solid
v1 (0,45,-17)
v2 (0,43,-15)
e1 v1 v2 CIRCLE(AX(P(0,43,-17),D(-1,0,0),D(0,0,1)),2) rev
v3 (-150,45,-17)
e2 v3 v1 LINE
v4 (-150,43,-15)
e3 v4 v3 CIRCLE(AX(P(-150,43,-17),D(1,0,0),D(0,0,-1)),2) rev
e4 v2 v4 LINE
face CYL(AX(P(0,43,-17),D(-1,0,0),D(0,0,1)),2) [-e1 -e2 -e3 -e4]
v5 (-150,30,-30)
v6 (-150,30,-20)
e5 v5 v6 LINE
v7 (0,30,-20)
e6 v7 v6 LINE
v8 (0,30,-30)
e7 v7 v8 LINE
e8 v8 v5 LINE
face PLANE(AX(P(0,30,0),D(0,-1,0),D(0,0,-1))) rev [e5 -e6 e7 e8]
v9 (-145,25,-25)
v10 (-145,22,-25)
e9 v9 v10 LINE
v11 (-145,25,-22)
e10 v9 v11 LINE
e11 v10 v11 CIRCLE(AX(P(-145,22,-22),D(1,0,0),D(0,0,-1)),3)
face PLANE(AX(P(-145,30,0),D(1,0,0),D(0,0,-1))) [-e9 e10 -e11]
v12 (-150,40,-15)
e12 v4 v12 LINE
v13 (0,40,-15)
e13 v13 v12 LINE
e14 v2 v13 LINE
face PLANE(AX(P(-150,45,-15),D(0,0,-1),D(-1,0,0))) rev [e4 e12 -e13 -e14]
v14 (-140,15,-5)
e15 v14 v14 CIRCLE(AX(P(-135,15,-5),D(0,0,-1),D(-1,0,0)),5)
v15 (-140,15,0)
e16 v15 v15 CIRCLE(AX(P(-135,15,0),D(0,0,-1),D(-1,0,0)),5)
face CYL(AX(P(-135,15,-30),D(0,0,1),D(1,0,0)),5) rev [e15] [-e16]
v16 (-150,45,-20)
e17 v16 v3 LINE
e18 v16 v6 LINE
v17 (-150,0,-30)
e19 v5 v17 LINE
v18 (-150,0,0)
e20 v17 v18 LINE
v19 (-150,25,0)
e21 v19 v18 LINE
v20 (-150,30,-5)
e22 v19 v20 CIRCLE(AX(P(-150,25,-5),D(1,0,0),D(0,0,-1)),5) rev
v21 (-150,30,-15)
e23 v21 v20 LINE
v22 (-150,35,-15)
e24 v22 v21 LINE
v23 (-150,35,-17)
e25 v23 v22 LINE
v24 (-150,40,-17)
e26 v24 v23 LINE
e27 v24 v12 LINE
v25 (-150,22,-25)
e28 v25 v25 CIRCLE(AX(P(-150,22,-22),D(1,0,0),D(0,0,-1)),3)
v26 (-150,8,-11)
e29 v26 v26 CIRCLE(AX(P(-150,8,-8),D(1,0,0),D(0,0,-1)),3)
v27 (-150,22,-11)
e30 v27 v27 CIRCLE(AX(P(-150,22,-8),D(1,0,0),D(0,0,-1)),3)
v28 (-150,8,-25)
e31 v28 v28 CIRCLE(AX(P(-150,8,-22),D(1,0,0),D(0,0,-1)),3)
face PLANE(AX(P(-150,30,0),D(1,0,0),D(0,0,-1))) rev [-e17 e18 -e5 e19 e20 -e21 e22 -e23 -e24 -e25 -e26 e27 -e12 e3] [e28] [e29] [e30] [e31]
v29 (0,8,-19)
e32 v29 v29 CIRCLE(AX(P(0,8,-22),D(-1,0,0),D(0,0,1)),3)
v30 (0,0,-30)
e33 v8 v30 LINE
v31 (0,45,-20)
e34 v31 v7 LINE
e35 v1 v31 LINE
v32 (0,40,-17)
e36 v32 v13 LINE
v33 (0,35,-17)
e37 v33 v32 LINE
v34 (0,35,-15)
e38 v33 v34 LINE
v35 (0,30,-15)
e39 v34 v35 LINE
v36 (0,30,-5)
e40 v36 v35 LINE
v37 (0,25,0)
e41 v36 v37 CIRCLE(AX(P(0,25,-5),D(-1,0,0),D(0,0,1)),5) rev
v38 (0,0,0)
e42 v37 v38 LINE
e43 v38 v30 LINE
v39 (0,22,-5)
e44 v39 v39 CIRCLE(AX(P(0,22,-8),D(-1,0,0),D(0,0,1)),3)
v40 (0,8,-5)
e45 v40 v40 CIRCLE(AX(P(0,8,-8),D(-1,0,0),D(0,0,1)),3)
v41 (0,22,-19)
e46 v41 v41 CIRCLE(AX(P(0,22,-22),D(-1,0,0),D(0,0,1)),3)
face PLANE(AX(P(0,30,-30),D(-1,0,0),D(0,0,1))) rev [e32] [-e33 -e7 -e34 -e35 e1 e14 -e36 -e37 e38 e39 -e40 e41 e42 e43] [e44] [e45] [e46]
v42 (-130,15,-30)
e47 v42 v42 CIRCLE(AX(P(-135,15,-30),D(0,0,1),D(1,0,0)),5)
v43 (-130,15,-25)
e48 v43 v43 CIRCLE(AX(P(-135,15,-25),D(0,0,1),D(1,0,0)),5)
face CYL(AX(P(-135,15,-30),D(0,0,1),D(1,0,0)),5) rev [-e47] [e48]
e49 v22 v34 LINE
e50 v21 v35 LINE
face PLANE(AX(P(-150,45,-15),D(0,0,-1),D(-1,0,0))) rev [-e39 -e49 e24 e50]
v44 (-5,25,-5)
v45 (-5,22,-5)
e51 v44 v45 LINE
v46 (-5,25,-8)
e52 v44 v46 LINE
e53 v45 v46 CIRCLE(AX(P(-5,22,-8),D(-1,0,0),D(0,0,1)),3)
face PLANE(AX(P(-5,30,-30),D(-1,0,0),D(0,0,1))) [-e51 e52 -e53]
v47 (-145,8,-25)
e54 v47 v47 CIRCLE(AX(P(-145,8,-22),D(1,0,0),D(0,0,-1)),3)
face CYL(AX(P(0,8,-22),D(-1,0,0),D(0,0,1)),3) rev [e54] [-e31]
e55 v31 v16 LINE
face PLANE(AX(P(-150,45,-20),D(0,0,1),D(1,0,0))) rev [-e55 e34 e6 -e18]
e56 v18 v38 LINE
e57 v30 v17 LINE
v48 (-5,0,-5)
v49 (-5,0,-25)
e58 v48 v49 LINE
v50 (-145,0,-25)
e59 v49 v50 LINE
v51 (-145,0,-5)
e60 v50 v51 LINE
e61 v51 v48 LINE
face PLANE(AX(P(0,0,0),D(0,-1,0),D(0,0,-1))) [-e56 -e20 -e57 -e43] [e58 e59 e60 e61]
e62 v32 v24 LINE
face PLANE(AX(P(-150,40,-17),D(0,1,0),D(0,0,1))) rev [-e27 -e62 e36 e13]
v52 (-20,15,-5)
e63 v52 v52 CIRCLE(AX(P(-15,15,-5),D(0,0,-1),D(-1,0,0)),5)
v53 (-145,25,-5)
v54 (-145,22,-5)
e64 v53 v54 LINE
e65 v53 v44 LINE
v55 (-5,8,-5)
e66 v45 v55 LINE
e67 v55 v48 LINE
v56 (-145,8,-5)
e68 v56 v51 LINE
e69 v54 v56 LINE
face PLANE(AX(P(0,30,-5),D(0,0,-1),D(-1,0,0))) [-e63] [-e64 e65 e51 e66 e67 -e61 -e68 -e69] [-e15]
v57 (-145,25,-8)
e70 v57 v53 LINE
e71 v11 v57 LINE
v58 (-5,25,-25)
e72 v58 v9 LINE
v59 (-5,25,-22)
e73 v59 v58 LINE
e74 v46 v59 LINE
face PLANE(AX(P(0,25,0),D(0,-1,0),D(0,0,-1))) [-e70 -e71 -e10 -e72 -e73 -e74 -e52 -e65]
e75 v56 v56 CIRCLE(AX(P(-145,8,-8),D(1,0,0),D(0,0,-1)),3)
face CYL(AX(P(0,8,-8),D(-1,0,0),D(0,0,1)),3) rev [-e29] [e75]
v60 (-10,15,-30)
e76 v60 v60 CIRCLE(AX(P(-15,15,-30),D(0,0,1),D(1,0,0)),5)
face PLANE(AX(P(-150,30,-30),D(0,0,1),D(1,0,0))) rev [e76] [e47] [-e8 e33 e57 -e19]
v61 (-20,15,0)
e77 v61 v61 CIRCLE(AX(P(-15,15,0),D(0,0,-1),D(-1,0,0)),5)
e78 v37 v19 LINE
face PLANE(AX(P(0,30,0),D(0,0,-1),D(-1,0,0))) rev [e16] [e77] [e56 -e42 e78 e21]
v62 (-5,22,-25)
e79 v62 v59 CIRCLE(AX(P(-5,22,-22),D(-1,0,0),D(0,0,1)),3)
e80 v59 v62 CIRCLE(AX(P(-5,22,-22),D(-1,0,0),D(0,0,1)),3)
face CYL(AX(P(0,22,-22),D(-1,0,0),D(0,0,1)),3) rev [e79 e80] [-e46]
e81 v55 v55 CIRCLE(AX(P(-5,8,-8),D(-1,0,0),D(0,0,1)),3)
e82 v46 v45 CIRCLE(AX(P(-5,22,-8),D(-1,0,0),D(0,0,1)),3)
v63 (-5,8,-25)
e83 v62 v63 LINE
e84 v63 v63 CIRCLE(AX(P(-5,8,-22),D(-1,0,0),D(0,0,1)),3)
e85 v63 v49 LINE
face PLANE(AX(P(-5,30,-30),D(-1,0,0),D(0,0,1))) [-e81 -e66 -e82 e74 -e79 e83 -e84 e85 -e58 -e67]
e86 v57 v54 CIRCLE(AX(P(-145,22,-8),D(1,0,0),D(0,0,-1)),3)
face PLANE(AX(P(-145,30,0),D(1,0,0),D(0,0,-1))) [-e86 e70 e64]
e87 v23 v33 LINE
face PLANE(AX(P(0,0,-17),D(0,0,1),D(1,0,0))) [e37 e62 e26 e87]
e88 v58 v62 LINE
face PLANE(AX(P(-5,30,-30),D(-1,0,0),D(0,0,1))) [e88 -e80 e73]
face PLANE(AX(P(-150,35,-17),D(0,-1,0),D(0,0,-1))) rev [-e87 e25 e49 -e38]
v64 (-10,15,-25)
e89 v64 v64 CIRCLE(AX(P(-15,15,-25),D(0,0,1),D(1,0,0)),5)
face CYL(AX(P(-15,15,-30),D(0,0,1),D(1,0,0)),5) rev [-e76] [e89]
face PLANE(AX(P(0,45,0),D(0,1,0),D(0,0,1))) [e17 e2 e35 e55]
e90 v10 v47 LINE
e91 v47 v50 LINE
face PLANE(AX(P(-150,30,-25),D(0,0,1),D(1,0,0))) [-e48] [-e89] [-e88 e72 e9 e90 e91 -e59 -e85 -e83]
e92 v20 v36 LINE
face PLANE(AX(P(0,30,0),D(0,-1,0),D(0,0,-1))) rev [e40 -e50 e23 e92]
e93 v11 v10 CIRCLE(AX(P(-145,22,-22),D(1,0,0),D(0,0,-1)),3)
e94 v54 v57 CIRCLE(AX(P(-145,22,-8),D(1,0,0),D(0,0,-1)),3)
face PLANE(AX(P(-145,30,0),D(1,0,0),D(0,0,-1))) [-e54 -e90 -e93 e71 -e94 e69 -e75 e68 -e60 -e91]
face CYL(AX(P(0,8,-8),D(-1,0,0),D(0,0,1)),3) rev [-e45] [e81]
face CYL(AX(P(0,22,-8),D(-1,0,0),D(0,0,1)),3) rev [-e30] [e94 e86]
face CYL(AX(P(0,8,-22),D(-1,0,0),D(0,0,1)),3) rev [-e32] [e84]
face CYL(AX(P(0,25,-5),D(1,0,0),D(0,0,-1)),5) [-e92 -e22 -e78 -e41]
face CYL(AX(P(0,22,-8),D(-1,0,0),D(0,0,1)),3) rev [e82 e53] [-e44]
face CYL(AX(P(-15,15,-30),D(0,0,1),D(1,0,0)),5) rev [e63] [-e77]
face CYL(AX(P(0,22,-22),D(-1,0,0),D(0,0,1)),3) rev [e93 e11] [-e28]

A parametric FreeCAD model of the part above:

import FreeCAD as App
import Part
import Sketcher
from FreeCAD import Vector
Q = App.Units.Quantity


def edges_at(feature, points):
    """Names of the edges that pass closest to the given points."""
    edges = feature.Shape.Edges
    near = lambda p: min(range(len(edges)), key=lambda i: edges[i].distToShape(Part.Vertex(*p))[0])
    return sorted({f"Edge{near(p) + 1}" for p in points})


def faces_at(feature, points):
    """Names of the faces that lie closest to the given points."""
    faces = feature.Shape.Faces
    near = lambda p: min(range(len(faces)), key=lambda i: faces[i].distToShape(Part.Vertex(*p))[0])
    return sorted({f"Face{near(p) + 1}" for p in points})

doc = App.newDocument("Part")
body = doc.addObject("PartDesign::Body", "Body")

# Sketch on XZ plane
sketch1 = body.newObject("Sketcher::SketchObject", "Sketch")
sketch1.AttachmentSupport = (doc.getObject("XZ_Plane"), [""])
sketch1.MapMode = "FlatFace"
sketch1.addGeometry([
    Part.LineSegment(Vector(-150, -30, 0), Vector(-150, 0, 0)),
    Part.LineSegment(Vector(-150, 0, 0), Vector(0, 0, 0)),
    Part.LineSegment(Vector(0, 0, 0), Vector(0, -30, 0)),
    Part.LineSegment(Vector(0, -30, 0), Vector(-150, -30, 0)),
], False)
sketch1.addConstraint([
    Sketcher.Constraint("Coincident", 0, 2, 1, 1),
    Sketcher.Constraint("Coincident", 1, 2, 2, 1),
    Sketcher.Constraint("Coincident", 2, 2, 3, 1),
    Sketcher.Constraint("Coincident", 3, 2, 0, 1),
    Sketcher.Constraint("Vertical", 0),
    Sketcher.Constraint("Horizontal", 1),
    Sketcher.Constraint("Vertical", 2),
    Sketcher.Constraint("Horizontal", 3),
    Sketcher.Constraint("Coincident", 1, 2, -1, 1),
    Sketcher.Constraint("DistanceX", 1, 1, 1, 2, Q("150 mm")),
    Sketcher.Constraint("DistanceY", 0, 1, 0, 2, Q("30 mm")),
])
pad1 = body.newObject("PartDesign::Pad", "Pad")
pad1.Profile = sketch1
pad1.Length = 30
pad1.Reversed = True
doc.recompute()

thickness = body.newObject("PartDesign::Thickness", "Thickness")
thickness.Base = (pad1, faces_at(pad1, [(-75, 0, -15)]))
thickness.Value = 5
thickness.Reversed = True
thickness.Join = "Intersection"

# Sketch on YZ plane
sketch2 = body.newObject("Sketcher::SketchObject", "Sketch001")
sketch2.AttachmentSupport = (doc.getObject("YZ_Plane"), [""])
sketch2.MapMode = "FlatFace"
sketch2.AttachmentOffset = App.Placement(Vector(0, 0, -150), App.Rotation())
sketch2.addGeometry([
    Part.Circle(Vector(22, -22, 0), Vector(0, 0, 1), 3),
    Part.Circle(Vector(22, -8, 0), Vector(0, 0, 1), 3),
    Part.Circle(Vector(8, -8, 0), Vector(0, 0, 1), 3),
    Part.Circle(Vector(8, -22, 0), Vector(0, 0, 1), 3),
], False)
sketch2.addConstraint([
    Sketcher.Constraint("Equal", 0, 1),
    Sketcher.Constraint("Equal", 1, 2),
    Sketcher.Constraint("Equal", 2, 3),
    Sketcher.Constraint("Horizontal", 1, 3, 2, 3),
    Sketcher.Constraint("Horizontal", 0, 3, 3, 3),
    Sketcher.Constraint("Vertical", 0, 3, 1, 3),
    Sketcher.Constraint("Vertical", 2, 3, 3, 3),
    Sketcher.Constraint("Diameter", 0, Q("6 mm")),
    Sketcher.Constraint("DistanceX", -1, 1, 0, 3, Q("22 mm")),
    Sketcher.Constraint("DistanceY", 0, 3, -1, 1, Q("22 mm")),
    Sketcher.Constraint("DistanceY", 1, 3, -1, 1, Q("8 mm")),
    Sketcher.Constraint("DistanceX", -1, 1, 2, 3, Q("8 mm")),
])
pocket1 = body.newObject("PartDesign::Pocket", "Pocket")
pocket1.Profile = sketch2
pocket1.Type = "ThroughAll"
pocket1.Midplane = True

# Sketch on XY plane
sketch3 = body.newObject("Sketcher::SketchObject", "Sketch002")
sketch3.AttachmentSupport = (doc.getObject("XY_Plane"), [""])
sketch3.MapMode = "FlatFace"
sketch3.addGeometry([
    Part.Circle(Vector(-135, 15, 0), Vector(0, 0, 1), 5),
    Part.Circle(Vector(-15, 15, 0), Vector(0, 0, 1), 5),
], False)
sketch3.addConstraint([
    Sketcher.Constraint("Equal", 0, 1),
    Sketcher.Constraint("Horizontal", 0, 3, 1, 3),
    Sketcher.Constraint("Diameter", 0, Q("10 mm")),
    Sketcher.Constraint("DistanceX", 0, 3, -1, 1, Q("135 mm")),
    Sketcher.Constraint("DistanceY", -1, 1, 0, 3, Q("15 mm")),
    Sketcher.Constraint("DistanceX", 1, 3, -1, 1, Q("15 mm")),
])
pocket2 = body.newObject("PartDesign::Pocket", "Pocket001")
pocket2.Profile = sketch3
pocket2.Type = "ThroughAll"
pocket2.Midplane = True

# Sketch on XZ plane
sketch4 = body.newObject("Sketcher::SketchObject", "Sketch003")
sketch4.AttachmentSupport = (doc.getObject("XZ_Plane"), [""])
sketch4.MapMode = "FlatFace"
sketch4.AttachmentOffset = App.Placement(Vector(0, 0, -30), App.Rotation())
sketch4.addGeometry([
    Part.LineSegment(Vector(-150, -20, 0), Vector(-150, -15, 0)),
    Part.LineSegment(Vector(-150, -15, 0), Vector(0, -15, 0)),
    Part.LineSegment(Vector(0, -15, 0), Vector(0, -20, 0)),
    Part.LineSegment(Vector(0, -20, 0), Vector(-150, -20, 0)),
], False)
sketch4.addConstraint([
    Sketcher.Constraint("Coincident", 0, 2, 1, 1),
    Sketcher.Constraint("Coincident", 1, 2, 2, 1),
    Sketcher.Constraint("Coincident", 2, 2, 3, 1),
    Sketcher.Constraint("Coincident", 3, 2, 0, 1),
    Sketcher.Constraint("Vertical", 0),
    Sketcher.Constraint("Horizontal", 1),
    Sketcher.Constraint("Vertical", 2),
    Sketcher.Constraint("Horizontal", 3),
    Sketcher.Constraint("PointOnObject", 1, 2, -2),
    Sketcher.Constraint("DistanceX", 1, 1, 1, 2, Q("150 mm")),
    Sketcher.Constraint("DistanceY", 0, 1, 0, 2, Q("5 mm")),
    Sketcher.Constraint("DistanceY", 0, 2, -1, 1, Q("15 mm")),
])
pad2 = body.newObject("PartDesign::Pad", "Pad001")
pad2.Profile = sketch4
pad2.Length = 15
pad2.Reversed = True

# Sketch on XY plane
sketch5 = body.newObject("Sketcher::SketchObject", "Sketch004")
sketch5.AttachmentSupport = (doc.getObject("XY_Plane"), [""])
sketch5.MapMode = "FlatFace"
sketch5.AttachmentOffset = App.Placement(Vector(0, 0, -15), App.Rotation())
sketch5.addGeometry([
    Part.LineSegment(Vector(-150, 40, 0), Vector(-150, 35, 0)),
    Part.LineSegment(Vector(-150, 35, 0), Vector(0, 35, 0)),
    Part.LineSegment(Vector(0, 35, 0), Vector(0, 40, 0)),
    Part.LineSegment(Vector(0, 40, 0), Vector(-150, 40, 0)),
], False)
sketch5.addConstraint([
    Sketcher.Constraint("Coincident", 0, 2, 1, 1),
    Sketcher.Constraint("Coincident", 1, 2, 2, 1),
    Sketcher.Constraint("Coincident", 2, 2, 3, 1),
    Sketcher.Constraint("Coincident", 3, 2, 0, 1),
    Sketcher.Constraint("Vertical", 0),
    Sketcher.Constraint("Horizontal", 1),
    Sketcher.Constraint("Vertical", 2),
    Sketcher.Constraint("Horizontal", 3),
    Sketcher.Constraint("PointOnObject", 1, 2, -2),
    Sketcher.Constraint("DistanceX", 1, 1, 1, 2, Q("150 mm")),
    Sketcher.Constraint("DistanceY", 0, 2, 0, 1, Q("5 mm")),
    Sketcher.Constraint("DistanceY", -1, 1, 0, 2, Q("35 mm")),
])
pocket3 = body.newObject("PartDesign::Pocket", "Pocket002")
pocket3.Profile = sketch5
pocket3.Length = 2
doc.recompute()

fillet = body.newObject("PartDesign::Fillet", "Fillet")
fillet.Base = (pocket3, edges_at(pocket3, [(-75, 45, -15)]))
fillet.Radius = 2
doc.recompute()

fillet2 = body.newObject("PartDesign::Fillet", "Fillet001")
fillet2.Base = (fillet, edges_at(fillet, [(-75, 30, 0)]))
fillet2.Radius = 5

doc.recompute()
